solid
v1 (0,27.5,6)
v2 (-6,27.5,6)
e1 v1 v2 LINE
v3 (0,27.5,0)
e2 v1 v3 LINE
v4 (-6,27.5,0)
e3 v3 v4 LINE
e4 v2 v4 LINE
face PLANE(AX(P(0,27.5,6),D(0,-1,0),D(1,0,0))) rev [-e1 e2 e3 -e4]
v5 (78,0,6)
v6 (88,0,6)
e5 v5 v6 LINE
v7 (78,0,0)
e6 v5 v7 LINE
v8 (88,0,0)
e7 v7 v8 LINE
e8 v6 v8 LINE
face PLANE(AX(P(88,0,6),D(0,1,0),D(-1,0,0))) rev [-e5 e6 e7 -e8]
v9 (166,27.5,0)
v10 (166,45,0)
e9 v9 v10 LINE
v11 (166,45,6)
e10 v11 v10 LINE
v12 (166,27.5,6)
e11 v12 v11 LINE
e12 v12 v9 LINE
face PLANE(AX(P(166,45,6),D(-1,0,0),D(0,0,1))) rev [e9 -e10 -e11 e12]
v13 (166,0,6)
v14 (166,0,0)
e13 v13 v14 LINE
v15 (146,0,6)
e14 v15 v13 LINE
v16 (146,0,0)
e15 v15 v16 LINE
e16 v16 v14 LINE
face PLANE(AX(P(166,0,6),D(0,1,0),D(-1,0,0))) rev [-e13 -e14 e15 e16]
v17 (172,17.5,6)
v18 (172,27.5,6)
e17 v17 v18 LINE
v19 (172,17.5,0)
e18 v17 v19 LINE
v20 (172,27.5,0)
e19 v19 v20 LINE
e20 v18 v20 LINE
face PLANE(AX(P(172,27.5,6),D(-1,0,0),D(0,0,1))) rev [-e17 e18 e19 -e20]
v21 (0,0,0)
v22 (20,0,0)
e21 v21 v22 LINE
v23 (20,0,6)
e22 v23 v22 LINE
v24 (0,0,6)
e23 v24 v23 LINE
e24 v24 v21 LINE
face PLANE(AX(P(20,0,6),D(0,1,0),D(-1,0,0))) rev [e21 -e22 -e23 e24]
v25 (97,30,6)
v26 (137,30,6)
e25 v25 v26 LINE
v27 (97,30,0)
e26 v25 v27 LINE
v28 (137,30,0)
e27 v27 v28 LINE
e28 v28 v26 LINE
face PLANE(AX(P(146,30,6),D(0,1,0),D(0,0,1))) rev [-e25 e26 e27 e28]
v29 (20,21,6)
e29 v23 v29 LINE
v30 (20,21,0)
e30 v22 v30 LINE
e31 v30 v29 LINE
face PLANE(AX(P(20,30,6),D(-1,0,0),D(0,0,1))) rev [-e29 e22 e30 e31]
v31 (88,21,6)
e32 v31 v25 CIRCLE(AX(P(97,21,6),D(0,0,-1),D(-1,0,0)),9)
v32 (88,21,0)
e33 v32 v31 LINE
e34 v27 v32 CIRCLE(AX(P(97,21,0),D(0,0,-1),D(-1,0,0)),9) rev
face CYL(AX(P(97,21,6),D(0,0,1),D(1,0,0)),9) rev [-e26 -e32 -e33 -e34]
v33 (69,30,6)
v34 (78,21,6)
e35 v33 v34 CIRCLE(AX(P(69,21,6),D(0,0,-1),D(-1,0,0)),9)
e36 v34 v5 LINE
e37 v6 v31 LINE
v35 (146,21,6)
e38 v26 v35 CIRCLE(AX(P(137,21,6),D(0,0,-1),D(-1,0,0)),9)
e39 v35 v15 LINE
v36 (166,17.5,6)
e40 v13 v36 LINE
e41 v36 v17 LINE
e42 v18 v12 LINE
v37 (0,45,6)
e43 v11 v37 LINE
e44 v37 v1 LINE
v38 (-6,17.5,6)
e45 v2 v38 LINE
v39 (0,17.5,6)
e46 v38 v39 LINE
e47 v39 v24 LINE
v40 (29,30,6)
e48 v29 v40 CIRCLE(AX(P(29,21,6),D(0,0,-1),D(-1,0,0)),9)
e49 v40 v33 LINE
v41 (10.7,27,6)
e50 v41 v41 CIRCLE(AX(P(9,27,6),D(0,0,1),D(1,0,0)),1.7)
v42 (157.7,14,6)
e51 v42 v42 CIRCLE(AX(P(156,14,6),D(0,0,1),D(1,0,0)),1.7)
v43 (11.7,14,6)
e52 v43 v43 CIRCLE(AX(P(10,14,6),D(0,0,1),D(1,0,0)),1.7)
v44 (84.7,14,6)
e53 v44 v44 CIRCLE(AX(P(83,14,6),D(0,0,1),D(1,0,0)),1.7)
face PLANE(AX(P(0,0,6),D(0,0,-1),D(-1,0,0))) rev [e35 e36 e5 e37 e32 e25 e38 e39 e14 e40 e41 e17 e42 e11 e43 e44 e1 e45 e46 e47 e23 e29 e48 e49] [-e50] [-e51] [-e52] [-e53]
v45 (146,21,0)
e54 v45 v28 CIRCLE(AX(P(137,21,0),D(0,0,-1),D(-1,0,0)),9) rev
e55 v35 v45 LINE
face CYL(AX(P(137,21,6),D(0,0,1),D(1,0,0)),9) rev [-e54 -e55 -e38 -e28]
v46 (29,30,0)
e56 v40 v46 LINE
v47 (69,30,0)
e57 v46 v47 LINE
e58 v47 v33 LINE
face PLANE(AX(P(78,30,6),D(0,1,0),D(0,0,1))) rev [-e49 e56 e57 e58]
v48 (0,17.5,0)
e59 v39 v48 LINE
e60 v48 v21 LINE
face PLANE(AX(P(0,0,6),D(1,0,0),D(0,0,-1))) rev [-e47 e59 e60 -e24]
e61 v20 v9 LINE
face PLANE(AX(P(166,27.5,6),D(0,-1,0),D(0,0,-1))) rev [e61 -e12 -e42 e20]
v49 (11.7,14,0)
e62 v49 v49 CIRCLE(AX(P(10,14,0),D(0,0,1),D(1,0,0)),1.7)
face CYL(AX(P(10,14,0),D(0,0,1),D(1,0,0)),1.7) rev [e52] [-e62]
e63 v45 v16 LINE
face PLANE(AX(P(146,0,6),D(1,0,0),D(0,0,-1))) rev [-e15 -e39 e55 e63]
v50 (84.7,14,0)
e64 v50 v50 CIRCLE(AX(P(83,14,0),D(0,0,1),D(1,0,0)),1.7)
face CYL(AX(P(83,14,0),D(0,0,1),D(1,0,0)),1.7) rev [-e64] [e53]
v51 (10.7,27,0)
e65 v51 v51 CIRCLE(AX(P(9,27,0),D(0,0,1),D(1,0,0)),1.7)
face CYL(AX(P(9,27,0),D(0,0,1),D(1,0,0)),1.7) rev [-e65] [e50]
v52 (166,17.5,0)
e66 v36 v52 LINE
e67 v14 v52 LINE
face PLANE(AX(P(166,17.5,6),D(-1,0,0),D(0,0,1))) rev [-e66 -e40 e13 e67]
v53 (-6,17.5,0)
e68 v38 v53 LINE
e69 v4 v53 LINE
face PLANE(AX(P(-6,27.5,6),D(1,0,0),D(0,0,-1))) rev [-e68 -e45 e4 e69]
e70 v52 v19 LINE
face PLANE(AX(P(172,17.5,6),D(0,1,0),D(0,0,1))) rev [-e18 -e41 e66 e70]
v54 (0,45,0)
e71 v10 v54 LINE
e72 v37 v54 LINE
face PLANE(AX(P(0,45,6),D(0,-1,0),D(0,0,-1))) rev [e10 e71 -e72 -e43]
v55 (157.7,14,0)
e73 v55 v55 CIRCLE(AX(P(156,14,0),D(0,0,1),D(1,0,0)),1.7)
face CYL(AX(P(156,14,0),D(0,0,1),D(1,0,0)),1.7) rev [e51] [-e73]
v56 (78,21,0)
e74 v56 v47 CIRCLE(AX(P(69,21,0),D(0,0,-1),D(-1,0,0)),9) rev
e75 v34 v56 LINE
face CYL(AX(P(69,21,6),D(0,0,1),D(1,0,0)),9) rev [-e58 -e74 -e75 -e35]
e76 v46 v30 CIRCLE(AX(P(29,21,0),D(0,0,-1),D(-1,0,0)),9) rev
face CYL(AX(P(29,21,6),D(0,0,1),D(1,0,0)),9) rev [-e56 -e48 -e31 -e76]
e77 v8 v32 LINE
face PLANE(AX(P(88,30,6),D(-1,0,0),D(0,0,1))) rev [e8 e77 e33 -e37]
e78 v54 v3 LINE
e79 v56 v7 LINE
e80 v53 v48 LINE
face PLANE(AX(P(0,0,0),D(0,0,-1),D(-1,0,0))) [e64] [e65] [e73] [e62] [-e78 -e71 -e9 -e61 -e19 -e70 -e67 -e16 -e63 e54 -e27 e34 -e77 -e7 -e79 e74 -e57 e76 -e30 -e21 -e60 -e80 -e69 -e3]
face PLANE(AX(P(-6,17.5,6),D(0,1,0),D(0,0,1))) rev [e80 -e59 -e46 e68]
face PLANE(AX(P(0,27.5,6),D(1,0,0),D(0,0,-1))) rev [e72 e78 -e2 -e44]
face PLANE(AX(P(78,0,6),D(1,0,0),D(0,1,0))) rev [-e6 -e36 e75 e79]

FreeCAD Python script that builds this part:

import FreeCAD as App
import Part
import Sketcher

V = App.Vector
Q = App.Units.Quantity


def edges_at(feature, points):
    """Names of the edges that pass closest to the given points."""
    edges = feature.Shape.Edges
    near = lambda p: min(range(len(edges)), key=lambda i: edges[i].distToShape(Part.Vertex(*p))[0])
    return sorted({f"Edge{near(p) + 1}" for p in points})


def add_polygon(sketch, points):
    """Adds a closed chain of lines whose ends are joined by coincident constraints."""
    first, n = sketch.GeometryCount, len(points)
    for a, b in zip(points, points[1:] + points[:1]):
        sketch.addGeometry(Part.LineSegment(App.Vector(*a, 0), App.Vector(*b, 0)), False)
    for i in range(n):
        sketch.addConstraint(Sketcher.Constraint("Coincident", first + i, 2, first + (i + 1) % n, 1))

doc = App.newDocument("Part")
params = doc.addObject("Spreadsheet::Sheet", "Params")
for row, (alias, value) in enumerate([
    ("sketch1_width", "20 mm"),
    ("sketch1_width2", "58 mm"),
    ("sketch1_width3", "10 mm"),
    ("sketch1_width4", "6 mm"),
    ("sketch1_height", "30 mm"),
    ("pad1_length", "6 mm"),
    ("fillet_radius", "9 mm"),
    ("sketch2_diameter", "3.4 mm"),
    ("sketch3_diameter", "3.4 mm"),
], start=1):
    params.set(f"A{row}", alias)
    params.set(f"B{row}", "=" + value)
    params.setAlias(f"B{row}", alias)

body = doc.addObject("PartDesign::Body", "Body")

# Sketch on XY plane
sketch1 = body.newObject("Sketcher::SketchObject", "Sketch")
sketch1.AttachmentSupport = (doc.getObject("XY_Plane"), [""])
sketch1.MapMode = "FlatFace"
add_polygon(sketch1, [(0, 18), (0, 0), (20, 0), (20, 30), (78, 30), (78, 0), (88, 0), (88, 30), (146, 30), (146, 0), (166, 0), (166, 18), (172, 18), (172, 28), (166, 28), (166, 45), (0, 45), (0, 28), (-6, 28), (-6, 18)])  # lines 0-19
sketch1.addConstraint(Sketcher.Constraint("Vertical", 0))
sketch1.addConstraint(Sketcher.Constraint("Horizontal", 1))
sketch1.addConstraint(Sketcher.Constraint("Vertical", 2))
sketch1.addConstraint(Sketcher.Constraint("Horizontal", 3))
sketch1.addConstraint(Sketcher.Constraint("Vertical", 4))
sketch1.addConstraint(Sketcher.Constraint("Horizontal", 5))
sketch1.addConstraint(Sketcher.Constraint("Vertical", 6))
sketch1.addConstraint(Sketcher.Constraint("Horizontal", 7))
sketch1.addConstraint(Sketcher.Constraint("Vertical", 8))
sketch1.addConstraint(Sketcher.Constraint("Horizontal", 9))
sketch1.addConstraint(Sketcher.Constraint("Vertical", 10))
sketch1.addConstraint(Sketcher.Constraint("Horizontal", 11))
sketch1.addConstraint(Sketcher.Constraint("Vertical", 12))
sketch1.addConstraint(Sketcher.Constraint("Horizontal", 13))
sketch1.addConstraint(Sketcher.Constraint("Vertical", 14))
sketch1.addConstraint(Sketcher.Constraint("Horizontal", 15))
sketch1.addConstraint(Sketcher.Constraint("Vertical", 16))
sketch1.addConstraint(Sketcher.Constraint("Horizontal", 17))
sketch1.addConstraint(Sketcher.Constraint("Vertical", 18))
sketch1.addConstraint(Sketcher.Constraint("Horizontal", 19))
sketch1.addConstraint(Sketcher.Constraint("Coincident", 0, 2, -1, 1))
sketch1.addConstraint(Sketcher.Constraint("PointOnObject", 4, 2, -1))
sketch1.addConstraint(Sketcher.Constraint("PointOnObject", 8, 2, -1))
sketch1.addConstraint(Sketcher.Constraint("PointOnObject", 15, 2, -2))
sketch1.addConstraint(Sketcher.Constraint("Horizontal", 3, 2, 6, 2))
sketch1.addConstraint(Sketcher.Constraint("Horizontal", 13, 2, 16, 2))
sketch1.addConstraint(Sketcher.Constraint("Horizontal", 11, 2, 18, 2))
sketch1.addConstraint(Sketcher.Constraint("Vertical", 10, 2, 13, 2))
sketch1.addConstraint(Sketcher.Constraint("Equal", 3, 7))
sketch1.addConstraint(Sketcher.Constraint("Equal", 1, 9))
sketch1.addConstraint(Sketcher.Constraint("Equal", 13, 17))
sketch1.addConstraint(Sketcher.Constraint("Equal", 5, 12))
sketch1.addConstraint(Sketcher.Constraint("Equal", 10, 14))
sketch1.addConstraint(Sketcher.Constraint("DistanceX", 1, 1, 1, 2, Q("20 mm")))
sketch1.addConstraint(Sketcher.Constraint("DistanceX", 3, 1, 3, 2, Q("58 mm")))
sketch1.addConstraint(Sketcher.Constraint("DistanceX", 5, 1, 5, 2, Q("10 mm")))
sketch1.addConstraint(Sketcher.Constraint("DistanceX", 11, 1, 11, 2, Q("6 mm")))
sketch1.addConstraint(Sketcher.Constraint("DistanceY", 2, 1, 2, 2, Q("30 mm")))
sketch1.addConstraint(Sketcher.Constraint("DistanceY", 0, 2, 0, 1, Q("17.5 mm")))
sketch1.setExpression("Constraints[53]", "Params.sketch1_width")
sketch1.setExpression("Constraints[54]", "Params.sketch1_width2")
sketch1.setExpression("Constraints[55]", "Params.sketch1_width3")
sketch1.setExpression("Constraints[56]", "Params.sketch1_width4")
sketch1.setExpression("Constraints[57]", "Params.sketch1_height")
pad1 = body.newObject("PartDesign::Pad", "Pad")
pad1.Profile = sketch1
pad1.setExpression("Length", "Params.pad1_length")
doc.recompute()

fillet = body.newObject("PartDesign::Fillet", "Fillet")
fillet.Base = (pad1, edges_at(pad1, [
    (146, 30, 3),
    (88, 30, 3),
    (78, 30, 3),
    (20, 30, 3),
]))
fillet.setExpression("Radius", "Params.fillet_radius")

# Sketch on XY plane
sketch2 = body.newObject("Sketcher::SketchObject", "Sketch001")
sketch2.AttachmentSupport = (doc.getObject("XY_Plane"), [""])
sketch2.MapMode = "FlatFace"
sketch2.AttachmentOffset = App.Placement(V(0, 0, 6), App.Rotation())
sketch2.addGeometry(Part.Circle(V(10, 14, 0), V(0, 0, 1), 1.7), False)
sketch2.addGeometry(Part.Circle(V(83, 14, 0), V(0, 0, 1), 1.7), False)
sketch2.addGeometry(Part.Circle(V(156, 14, 0), V(0, 0, 1), 1.7), False)
sketch2.addConstraint(Sketcher.Constraint("Equal", 0, 1))
sketch2.addConstraint(Sketcher.Constraint("Equal", 1, 2))
sketch2.addConstraint(Sketcher.Constraint("Horizontal", 0, 3, 1, 3))
sketch2.addConstraint(Sketcher.Constraint("Horizontal", 1, 3, 2, 3))
sketch2.addConstraint(Sketcher.Constraint("Diameter", 0, Q("3.4 mm")))
sketch2.addConstraint(Sketcher.Constraint("DistanceX", -1, 1, 0, 3, Q("10 mm")))
sketch2.addConstraint(Sketcher.Constraint("DistanceY", -1, 1, 0, 3, Q("14 mm")))
sketch2.addConstraint(Sketcher.Constraint("DistanceX", -1, 1, 1, 3, Q("83 mm")))
sketch2.addConstraint(Sketcher.Constraint("DistanceX", -1, 1, 2, 3, Q("156 mm")))
sketch2.setExpression("Constraints[4]", "Params.sketch2_diameter")
pocket1 = body.newObject("PartDesign::Pocket", "Pocket")
pocket1.Profile = sketch2
pocket1.Type = "ThroughAll"

# Sketch on XY plane
sketch3 = body.newObject("Sketcher::SketchObject", "Sketch002")
sketch3.AttachmentSupport = (doc.getObject("XY_Plane"), [""])
sketch3.MapMode = "FlatFace"
sketch3.AttachmentOffset = App.Placement(V(0, 0, 6), App.Rotation())
sketch3.addGeometry(Part.Circle(V(9, 27, 0), V(0, 0, 1), 1.7), False)
sketch3.addConstraint(Sketcher.Constraint("Diameter", 0, Q("3.4 mm")))
sketch3.addConstraint(Sketcher.Constraint("DistanceX", -1, 1, 0, 3, Q("9 mm")))
sketch3.addConstraint(Sketcher.Constraint("DistanceY", -1, 1, 0, 3, Q("27 mm")))
sketch3.setExpression("Constraints[0]", "Params.sketch3_diameter")
pocket2 = body.newObject("PartDesign::Pocket", "Pocket001")
pocket2.Profile = sketch3
pocket2.Type = "ThroughAll"

doc.recompute()
